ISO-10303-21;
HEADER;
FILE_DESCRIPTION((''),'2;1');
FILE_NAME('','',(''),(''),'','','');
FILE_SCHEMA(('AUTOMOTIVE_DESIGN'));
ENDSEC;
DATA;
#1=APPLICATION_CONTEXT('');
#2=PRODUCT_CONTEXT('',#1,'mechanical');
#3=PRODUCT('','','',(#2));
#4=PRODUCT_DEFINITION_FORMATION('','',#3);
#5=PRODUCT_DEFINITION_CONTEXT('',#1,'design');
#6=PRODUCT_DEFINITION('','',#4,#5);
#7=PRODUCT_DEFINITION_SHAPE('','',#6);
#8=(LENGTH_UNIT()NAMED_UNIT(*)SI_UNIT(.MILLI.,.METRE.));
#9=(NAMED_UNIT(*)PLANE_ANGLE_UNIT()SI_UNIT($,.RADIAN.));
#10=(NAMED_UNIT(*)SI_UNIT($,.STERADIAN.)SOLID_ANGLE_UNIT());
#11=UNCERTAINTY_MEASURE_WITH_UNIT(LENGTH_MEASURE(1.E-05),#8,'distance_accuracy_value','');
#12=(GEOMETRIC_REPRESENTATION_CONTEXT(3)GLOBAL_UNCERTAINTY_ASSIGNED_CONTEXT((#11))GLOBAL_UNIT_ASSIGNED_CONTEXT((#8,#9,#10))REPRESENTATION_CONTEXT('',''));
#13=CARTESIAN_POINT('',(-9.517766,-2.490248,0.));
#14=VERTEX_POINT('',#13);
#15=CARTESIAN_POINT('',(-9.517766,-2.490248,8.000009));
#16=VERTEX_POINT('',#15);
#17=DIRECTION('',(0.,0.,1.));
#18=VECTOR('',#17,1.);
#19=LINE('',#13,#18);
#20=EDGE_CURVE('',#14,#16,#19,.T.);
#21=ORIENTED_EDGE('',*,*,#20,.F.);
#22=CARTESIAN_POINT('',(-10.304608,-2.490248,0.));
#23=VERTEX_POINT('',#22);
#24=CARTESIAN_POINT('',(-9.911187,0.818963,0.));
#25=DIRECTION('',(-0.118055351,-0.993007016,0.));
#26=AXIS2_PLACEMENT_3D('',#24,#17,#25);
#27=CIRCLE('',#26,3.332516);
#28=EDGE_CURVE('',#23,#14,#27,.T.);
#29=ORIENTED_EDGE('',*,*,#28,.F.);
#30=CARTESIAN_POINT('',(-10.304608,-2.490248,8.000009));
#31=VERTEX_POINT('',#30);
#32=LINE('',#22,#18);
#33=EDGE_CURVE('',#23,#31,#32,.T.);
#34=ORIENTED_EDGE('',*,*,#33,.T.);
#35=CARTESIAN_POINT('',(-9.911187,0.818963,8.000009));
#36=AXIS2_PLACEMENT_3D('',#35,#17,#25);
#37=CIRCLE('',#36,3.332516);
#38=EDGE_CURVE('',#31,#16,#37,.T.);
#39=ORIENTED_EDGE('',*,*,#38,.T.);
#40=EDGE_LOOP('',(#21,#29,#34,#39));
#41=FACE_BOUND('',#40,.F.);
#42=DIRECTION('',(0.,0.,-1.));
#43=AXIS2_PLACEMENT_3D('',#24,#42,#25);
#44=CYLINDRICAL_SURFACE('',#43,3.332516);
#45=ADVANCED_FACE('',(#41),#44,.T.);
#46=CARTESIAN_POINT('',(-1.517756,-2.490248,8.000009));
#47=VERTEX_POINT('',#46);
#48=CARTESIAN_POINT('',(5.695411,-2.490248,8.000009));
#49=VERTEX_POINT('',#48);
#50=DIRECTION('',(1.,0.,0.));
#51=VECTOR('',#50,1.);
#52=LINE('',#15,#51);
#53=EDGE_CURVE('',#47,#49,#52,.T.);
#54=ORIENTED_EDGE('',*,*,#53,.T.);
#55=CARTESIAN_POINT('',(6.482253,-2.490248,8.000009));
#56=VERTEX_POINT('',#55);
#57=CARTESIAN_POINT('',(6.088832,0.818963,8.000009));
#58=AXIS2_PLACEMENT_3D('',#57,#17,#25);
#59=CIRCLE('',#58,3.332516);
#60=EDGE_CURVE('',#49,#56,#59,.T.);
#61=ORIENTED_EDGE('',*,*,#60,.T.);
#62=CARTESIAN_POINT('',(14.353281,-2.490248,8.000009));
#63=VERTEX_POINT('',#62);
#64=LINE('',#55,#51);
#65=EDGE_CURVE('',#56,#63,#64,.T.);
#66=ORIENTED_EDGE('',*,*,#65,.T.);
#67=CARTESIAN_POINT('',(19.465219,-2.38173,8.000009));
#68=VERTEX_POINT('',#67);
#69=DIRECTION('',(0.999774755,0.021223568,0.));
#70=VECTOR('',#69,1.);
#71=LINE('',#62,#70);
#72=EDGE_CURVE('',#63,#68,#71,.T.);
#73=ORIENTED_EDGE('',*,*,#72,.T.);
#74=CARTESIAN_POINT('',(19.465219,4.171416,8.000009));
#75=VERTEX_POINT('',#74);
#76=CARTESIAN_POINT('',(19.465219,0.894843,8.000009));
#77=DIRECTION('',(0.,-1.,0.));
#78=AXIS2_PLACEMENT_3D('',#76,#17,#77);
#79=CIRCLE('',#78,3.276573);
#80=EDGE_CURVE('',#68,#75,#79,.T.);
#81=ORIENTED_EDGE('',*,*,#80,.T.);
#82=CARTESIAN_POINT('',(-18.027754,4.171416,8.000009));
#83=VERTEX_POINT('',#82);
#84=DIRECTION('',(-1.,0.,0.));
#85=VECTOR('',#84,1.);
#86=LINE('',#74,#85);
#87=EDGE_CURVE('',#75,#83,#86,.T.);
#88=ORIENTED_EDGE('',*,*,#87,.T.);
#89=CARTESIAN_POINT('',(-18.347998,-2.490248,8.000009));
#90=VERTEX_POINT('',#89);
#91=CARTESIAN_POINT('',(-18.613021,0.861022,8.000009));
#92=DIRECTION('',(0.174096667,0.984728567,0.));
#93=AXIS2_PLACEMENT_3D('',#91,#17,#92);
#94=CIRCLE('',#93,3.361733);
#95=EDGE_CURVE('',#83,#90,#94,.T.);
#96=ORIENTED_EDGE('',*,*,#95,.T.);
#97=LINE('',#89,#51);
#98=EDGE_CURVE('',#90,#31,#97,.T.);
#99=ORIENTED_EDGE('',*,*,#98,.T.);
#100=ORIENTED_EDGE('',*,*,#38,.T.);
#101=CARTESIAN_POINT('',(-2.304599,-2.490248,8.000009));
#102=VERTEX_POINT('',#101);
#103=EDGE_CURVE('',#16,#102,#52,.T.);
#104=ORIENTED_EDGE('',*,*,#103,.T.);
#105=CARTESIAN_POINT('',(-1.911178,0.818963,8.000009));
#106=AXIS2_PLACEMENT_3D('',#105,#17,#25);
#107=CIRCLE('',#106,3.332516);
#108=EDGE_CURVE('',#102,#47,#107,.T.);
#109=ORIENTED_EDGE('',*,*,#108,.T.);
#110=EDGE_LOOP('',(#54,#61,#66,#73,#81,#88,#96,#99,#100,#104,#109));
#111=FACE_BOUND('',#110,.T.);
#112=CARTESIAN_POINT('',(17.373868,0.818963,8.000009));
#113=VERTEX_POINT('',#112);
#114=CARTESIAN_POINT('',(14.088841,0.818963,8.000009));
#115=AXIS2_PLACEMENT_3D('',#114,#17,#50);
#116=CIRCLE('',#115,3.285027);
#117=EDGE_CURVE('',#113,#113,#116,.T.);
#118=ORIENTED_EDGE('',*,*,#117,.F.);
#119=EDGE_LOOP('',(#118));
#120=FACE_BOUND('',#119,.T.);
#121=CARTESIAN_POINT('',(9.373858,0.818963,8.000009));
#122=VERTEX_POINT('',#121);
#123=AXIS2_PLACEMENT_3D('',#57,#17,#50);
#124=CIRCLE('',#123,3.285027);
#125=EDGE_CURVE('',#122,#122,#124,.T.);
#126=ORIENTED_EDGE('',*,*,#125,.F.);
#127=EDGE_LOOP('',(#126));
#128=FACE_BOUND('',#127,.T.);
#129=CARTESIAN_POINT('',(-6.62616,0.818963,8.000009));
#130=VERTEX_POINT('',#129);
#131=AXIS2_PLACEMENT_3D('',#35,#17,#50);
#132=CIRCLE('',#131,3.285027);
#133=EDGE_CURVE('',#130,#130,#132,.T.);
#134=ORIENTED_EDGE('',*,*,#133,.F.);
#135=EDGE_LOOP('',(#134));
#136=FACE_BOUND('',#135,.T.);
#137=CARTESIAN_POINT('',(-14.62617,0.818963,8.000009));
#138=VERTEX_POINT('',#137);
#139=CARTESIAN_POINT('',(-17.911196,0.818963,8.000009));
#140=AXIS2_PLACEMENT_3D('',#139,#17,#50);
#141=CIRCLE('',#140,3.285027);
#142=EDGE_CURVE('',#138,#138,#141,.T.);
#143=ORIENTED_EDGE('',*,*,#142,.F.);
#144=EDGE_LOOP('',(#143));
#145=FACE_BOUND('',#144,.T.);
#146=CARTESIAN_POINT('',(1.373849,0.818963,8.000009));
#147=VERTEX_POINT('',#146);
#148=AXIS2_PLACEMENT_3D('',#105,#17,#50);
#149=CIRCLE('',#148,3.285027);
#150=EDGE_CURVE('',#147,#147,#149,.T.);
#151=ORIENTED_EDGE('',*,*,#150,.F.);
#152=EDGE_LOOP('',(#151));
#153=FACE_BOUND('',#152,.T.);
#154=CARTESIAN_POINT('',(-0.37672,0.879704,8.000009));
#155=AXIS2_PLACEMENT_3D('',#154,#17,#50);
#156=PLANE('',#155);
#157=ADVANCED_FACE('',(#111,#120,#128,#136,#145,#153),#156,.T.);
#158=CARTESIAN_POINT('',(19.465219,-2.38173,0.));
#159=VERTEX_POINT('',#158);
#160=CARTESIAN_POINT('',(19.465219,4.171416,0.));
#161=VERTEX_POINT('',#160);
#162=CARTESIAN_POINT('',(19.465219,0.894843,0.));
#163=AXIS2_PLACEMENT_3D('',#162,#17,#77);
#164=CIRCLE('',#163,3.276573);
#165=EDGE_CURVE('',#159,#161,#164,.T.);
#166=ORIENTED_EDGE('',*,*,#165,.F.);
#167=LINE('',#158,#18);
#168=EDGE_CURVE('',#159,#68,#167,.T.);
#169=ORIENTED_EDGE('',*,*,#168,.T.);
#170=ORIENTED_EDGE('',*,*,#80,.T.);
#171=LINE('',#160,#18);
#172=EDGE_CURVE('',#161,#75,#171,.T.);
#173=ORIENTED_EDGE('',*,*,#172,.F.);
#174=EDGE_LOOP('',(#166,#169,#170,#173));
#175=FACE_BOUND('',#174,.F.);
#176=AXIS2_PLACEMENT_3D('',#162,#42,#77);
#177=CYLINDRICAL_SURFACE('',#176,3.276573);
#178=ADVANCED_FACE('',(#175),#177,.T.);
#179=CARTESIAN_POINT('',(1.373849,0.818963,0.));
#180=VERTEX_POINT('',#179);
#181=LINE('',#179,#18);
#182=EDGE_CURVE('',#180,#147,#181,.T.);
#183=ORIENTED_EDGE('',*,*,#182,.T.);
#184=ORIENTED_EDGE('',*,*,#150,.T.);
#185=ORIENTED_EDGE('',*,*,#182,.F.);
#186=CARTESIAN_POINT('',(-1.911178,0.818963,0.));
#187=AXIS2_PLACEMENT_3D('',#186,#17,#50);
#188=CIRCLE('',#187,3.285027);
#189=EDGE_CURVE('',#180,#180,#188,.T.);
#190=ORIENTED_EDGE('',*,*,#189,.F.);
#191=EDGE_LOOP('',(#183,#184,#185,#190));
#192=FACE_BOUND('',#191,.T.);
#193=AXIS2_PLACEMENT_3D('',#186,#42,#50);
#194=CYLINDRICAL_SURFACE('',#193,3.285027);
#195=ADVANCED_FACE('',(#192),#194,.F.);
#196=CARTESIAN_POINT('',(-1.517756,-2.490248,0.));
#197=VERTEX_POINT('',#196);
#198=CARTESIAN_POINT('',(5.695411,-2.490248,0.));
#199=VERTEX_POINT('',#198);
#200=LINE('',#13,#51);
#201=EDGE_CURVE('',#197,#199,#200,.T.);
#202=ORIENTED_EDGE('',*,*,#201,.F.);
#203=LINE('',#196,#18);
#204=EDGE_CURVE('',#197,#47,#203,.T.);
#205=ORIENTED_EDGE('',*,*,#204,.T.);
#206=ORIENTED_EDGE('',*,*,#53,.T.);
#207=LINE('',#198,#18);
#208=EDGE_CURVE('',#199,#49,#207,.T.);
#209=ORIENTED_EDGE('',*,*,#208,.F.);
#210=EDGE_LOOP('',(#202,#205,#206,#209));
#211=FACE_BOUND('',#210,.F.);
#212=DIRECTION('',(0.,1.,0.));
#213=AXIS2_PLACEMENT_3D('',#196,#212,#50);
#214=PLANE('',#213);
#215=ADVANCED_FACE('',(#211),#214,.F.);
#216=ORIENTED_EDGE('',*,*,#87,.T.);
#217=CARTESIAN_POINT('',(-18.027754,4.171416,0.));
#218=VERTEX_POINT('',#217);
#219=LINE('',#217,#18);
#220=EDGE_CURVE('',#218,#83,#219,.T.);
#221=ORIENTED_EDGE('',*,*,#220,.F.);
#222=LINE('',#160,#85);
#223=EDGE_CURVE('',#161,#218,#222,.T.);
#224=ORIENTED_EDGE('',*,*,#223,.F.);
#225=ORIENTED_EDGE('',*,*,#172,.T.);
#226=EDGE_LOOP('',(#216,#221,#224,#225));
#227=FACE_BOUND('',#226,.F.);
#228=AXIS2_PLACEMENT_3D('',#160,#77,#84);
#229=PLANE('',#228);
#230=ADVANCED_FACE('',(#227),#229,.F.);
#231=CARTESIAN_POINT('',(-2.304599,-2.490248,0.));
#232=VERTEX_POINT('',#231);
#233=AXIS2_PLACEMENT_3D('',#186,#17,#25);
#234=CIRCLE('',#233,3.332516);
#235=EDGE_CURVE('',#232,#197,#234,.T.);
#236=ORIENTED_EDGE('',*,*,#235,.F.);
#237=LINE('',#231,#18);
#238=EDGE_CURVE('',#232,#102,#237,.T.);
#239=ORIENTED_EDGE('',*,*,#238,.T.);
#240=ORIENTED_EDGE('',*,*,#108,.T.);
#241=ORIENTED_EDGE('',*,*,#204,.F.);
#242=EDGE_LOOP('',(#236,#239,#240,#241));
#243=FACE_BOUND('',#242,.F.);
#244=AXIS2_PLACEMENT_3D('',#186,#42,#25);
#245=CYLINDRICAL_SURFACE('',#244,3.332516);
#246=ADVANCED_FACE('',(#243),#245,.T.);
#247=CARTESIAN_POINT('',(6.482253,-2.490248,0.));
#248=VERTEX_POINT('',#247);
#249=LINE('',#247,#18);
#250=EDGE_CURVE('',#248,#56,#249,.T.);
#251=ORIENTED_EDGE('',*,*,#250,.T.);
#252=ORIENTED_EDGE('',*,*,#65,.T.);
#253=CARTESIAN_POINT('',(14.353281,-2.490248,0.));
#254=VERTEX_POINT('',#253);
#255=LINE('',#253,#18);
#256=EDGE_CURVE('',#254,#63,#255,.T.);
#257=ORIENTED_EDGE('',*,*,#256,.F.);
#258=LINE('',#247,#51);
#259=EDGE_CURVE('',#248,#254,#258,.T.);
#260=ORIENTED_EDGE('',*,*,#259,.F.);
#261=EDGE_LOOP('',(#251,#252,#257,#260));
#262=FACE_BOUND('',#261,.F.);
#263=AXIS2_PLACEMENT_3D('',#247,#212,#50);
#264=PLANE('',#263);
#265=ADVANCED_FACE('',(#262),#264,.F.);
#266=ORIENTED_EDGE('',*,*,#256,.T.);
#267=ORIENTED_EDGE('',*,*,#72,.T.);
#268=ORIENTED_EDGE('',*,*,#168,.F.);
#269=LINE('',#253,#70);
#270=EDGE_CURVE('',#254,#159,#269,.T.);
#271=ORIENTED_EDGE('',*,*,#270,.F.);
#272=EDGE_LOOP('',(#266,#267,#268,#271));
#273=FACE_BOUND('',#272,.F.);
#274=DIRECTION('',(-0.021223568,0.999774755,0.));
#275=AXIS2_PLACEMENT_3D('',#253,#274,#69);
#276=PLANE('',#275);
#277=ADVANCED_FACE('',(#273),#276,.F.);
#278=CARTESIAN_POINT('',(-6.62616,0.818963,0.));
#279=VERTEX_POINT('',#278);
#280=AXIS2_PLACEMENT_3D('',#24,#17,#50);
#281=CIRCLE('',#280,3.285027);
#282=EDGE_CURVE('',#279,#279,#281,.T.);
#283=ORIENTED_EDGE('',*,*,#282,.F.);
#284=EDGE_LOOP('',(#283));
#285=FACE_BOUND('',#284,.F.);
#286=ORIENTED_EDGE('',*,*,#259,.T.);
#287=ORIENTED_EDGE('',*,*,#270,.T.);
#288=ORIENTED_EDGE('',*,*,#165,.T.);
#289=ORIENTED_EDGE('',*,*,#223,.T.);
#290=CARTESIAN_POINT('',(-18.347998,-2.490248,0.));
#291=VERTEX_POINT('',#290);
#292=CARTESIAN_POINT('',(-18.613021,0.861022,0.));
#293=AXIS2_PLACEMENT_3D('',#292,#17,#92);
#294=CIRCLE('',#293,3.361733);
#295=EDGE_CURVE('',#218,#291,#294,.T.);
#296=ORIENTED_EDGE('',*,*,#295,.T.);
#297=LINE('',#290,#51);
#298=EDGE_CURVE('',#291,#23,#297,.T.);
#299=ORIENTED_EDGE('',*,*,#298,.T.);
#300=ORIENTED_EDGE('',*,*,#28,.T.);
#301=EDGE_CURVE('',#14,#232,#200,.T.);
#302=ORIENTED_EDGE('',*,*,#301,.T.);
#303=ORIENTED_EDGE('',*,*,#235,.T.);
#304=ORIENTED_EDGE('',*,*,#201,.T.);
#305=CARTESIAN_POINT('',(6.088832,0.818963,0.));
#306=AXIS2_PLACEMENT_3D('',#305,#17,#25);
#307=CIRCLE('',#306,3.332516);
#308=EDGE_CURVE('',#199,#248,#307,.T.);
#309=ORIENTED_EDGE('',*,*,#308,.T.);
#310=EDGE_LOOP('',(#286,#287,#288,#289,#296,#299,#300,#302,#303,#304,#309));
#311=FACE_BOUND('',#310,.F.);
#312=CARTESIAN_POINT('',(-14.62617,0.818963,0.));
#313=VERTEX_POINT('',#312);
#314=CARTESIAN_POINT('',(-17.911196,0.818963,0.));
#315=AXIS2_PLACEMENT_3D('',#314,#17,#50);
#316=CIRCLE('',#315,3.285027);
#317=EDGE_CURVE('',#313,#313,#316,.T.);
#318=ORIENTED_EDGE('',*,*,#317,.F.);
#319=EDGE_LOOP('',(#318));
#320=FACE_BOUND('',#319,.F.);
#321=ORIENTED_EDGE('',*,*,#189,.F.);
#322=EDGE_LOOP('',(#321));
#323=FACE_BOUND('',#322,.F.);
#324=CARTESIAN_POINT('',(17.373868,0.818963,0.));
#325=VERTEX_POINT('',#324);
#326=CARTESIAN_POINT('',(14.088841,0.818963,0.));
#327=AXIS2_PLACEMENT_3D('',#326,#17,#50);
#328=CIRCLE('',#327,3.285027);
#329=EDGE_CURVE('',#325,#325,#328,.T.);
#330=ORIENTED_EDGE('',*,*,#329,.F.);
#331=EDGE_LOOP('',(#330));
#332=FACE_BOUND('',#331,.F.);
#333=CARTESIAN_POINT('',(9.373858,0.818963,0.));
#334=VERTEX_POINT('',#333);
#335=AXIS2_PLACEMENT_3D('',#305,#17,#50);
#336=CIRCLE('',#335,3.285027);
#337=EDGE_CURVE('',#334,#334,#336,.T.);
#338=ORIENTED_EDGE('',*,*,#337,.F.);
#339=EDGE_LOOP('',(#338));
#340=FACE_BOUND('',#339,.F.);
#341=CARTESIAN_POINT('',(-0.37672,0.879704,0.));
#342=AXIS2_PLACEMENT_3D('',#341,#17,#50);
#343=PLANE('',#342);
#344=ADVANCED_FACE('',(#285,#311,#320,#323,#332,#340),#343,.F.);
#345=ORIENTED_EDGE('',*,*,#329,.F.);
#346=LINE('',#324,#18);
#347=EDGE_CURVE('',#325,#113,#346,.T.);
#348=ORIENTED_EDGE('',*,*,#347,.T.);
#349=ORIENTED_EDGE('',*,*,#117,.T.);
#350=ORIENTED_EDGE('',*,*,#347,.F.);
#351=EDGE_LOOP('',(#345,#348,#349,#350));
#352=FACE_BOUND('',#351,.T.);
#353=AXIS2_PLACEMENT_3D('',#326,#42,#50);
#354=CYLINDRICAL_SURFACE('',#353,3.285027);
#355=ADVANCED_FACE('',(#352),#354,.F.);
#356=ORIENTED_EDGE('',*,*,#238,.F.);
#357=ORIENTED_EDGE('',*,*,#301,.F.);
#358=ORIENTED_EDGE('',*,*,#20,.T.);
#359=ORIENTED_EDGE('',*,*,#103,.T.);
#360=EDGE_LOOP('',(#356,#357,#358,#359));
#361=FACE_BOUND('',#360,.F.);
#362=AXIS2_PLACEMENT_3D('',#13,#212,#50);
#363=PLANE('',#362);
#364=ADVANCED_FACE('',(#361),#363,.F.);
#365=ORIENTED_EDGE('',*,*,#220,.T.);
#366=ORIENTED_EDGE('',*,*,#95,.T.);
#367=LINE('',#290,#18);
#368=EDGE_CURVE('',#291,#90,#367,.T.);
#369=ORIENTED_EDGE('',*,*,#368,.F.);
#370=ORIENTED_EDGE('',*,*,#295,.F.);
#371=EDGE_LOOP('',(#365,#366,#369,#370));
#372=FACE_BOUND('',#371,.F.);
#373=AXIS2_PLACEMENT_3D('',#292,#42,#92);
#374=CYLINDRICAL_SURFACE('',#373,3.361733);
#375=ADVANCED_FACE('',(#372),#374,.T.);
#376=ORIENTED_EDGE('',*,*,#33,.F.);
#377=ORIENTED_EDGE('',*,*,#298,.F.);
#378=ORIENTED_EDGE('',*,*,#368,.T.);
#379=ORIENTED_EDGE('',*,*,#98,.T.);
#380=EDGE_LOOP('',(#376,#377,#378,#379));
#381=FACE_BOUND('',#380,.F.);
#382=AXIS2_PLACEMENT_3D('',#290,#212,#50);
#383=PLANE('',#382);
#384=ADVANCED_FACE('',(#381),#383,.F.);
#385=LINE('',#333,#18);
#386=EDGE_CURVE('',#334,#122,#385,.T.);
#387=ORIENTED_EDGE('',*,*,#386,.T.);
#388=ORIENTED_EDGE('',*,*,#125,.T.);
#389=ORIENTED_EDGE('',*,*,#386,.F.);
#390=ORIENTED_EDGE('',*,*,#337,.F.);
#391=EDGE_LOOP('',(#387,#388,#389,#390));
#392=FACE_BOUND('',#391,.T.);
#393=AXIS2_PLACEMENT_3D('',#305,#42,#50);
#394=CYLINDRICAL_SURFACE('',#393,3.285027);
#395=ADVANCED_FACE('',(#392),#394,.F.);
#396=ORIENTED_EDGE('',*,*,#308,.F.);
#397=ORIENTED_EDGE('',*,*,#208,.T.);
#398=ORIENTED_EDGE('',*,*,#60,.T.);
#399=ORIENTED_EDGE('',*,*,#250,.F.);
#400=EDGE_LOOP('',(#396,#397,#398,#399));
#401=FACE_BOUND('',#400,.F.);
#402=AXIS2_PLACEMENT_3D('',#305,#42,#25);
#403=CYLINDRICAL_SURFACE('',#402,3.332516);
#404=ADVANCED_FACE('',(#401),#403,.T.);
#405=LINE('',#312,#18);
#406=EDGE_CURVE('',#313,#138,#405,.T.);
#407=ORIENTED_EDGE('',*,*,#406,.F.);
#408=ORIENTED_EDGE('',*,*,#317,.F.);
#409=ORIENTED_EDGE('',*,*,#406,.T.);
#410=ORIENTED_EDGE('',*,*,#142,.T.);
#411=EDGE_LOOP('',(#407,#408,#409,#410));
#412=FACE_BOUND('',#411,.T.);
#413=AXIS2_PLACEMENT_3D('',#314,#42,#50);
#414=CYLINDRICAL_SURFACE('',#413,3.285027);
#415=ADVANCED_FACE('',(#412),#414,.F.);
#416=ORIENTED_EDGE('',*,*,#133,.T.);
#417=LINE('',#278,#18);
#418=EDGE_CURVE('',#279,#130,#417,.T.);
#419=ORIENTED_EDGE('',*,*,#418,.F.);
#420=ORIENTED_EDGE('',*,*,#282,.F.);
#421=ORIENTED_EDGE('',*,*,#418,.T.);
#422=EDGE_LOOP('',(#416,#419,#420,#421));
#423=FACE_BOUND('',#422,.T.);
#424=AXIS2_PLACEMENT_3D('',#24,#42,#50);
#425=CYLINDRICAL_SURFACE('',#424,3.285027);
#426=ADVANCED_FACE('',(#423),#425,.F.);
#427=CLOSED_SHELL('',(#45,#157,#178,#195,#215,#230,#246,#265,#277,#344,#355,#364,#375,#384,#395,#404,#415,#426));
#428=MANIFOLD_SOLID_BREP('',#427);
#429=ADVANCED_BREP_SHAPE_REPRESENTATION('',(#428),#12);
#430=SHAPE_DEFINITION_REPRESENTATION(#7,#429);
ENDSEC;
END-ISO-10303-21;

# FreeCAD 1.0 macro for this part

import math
import FreeCAD as App
import Part
import Sketcher

V = App.Vector

doc = App.newDocument("Part")
body = doc.addObject("PartDesign::Body", "Body")

# Sketch on XY plane
sketch1 = body.newObject("Sketcher::SketchObject", "Sketch")
sketch1.AttachmentSupport = (doc.getObject("XY_Plane"), [""])
sketch1.MapMode = "FlatFace"
sketch1.addGeometry([
    Part.ArcOfCircle(Part.Circle(V(-18.6, 0.9, 0), V(0, 0, 1), 3.4), math.radians(80), math.radians(275)),  # 0
    Part.LineSegment(V(-18.3, -2.5, 0), V(-10.3, -2.5, 0)),  # 1
    Part.ArcOfCircle(Part.Circle(V(-9.9, 0.8, 0), V(0, 0, 1), 3.3), math.radians(-96.78), math.radians(-83.22)),  # 2
    Part.LineSegment(V(-9.5, -2.5, 0), V(-2.3, -2.5, 0)),  # 3
    Part.ArcOfCircle(Part.Circle(V(-1.9, 0.8, 0), V(0, 0, 1), 3.3), math.radians(-96.78), math.radians(-83.22)),  # 4
    Part.LineSegment(V(-1.5, -2.5, 0), V(5.7, -2.5, 0)),  # 5
    Part.ArcOfCircle(Part.Circle(V(6.1, 0.8, 0), V(0, 0, 1), 3.3), math.radians(-96.78), math.radians(-83.22)),  # 6
    Part.LineSegment(V(6.5, -2.5, 0), V(14.4, -2.5, 0)),  # 7
    Part.LineSegment(V(14.4, -2.5, 0), V(19.5, -2.4, 0)),  # 8
    Part.ArcOfCircle(Part.Circle(V(19.5, 0.9, 0), V(0, 0, 1), 3.3), math.radians(-90), math.radians(90)),  # 9
    Part.LineSegment(V(19.5, 4.2, 0), V(-18, 4.2, 0)),  # 10
    Part.Circle(V(-17.9, 0.8, 0), V(0, 0, 1), 3.3),  # 11
    Part.Circle(V(-9.9, 0.8, 0), V(0, 0, 1), 3.3),  # 12
    Part.Circle(V(-1.9, 0.8, 0), V(0, 0, 1), 3.3),  # 13
    Part.Circle(V(6.1, 0.8, 0), V(0, 0, 1), 3.3),  # 14
    Part.Circle(V(14.1, 0.8, 0), V(0, 0, 1), 3.3),  # 15
], False)
sketch1.addConstraint([
    Sketcher.Constraint("Coincident", 0, 2, 1, 1),
    Sketcher.Constraint("Coincident", 1, 2, 2, 1),
    Sketcher.Constraint("Coincident", 2, 2, 3, 1),
    Sketcher.Constraint("Coincident", 3, 2, 4, 1),
    Sketcher.Constraint("Coincident", 4, 2, 5, 1),
    Sketcher.Constraint("Coincident", 5, 2, 6, 1),
    Sketcher.Constraint("Coincident", 6, 2, 7, 1),
    Sketcher.Constraint("Coincident", 7, 2, 8, 1),
    Sketcher.Constraint("Coincident", 8, 2, 9, 1),
    Sketcher.Constraint("Tangent", 9, 2, 10, 1),
    Sketcher.Constraint("Coincident", 10, 2, 0, 1),
    Sketcher.Constraint("Horizontal", 1),
    Sketcher.Constraint("Horizontal", 3),
    Sketcher.Constraint("Horizontal", 5),
    Sketcher.Constraint("Horizontal", 7),
    Sketcher.Constraint("Horizontal", 10),
    Sketcher.Constraint("Coincident", 12, 3, 2, 3),
    Sketcher.Constraint("Coincident", 13, 3, 4, 3),
    Sketcher.Constraint("Coincident", 14, 3, 6, 3),
    Sketcher.Constraint("Equal", 2, 4),
    Sketcher.Constraint("Equal", 4, 6),
    Sketcher.Constraint("Equal", 11, 12),
    Sketcher.Constraint("Equal", 12, 13),
    Sketcher.Constraint("Equal", 13, 14),
    Sketcher.Constraint("Equal", 14, 15),
    Sketcher.Constraint("Horizontal", 2, 3, 4, 3),
    Sketcher.Constraint("Horizontal", 4, 3, 6, 3),
    Sketcher.Constraint("Horizontal", 6, 3, 11, 3),
    Sketcher.Constraint("Horizontal", 14, 3, 15, 3),
    Sketcher.Constraint("Horizontal", 1, 2, 2, 2),
    Sketcher.Constraint("Horizontal", 3, 2, 4, 2),
    Sketcher.Constraint("Horizontal", 5, 2, 6, 2),
    Sketcher.Constraint("Vertical", 9, 3, 8, 2),
    Sketcher.Constraint("Equal", 3, 5),
    Sketcher.Constraint("Diameter", 11, 6.570053),
    Sketcher.Constraint("DistanceX", 0, 2, -1, 1, 18.347998),
    Sketcher.Constraint("Radius", 0, 3.361733),
    Sketcher.Constraint("Radius", 2, 3.332516),
    Sketcher.Constraint("Radius", 9, 3.276573),
    Sketcher.Constraint("DistanceX", 1, 1, 1, 2, 8.04339),
    Sketcher.Constraint("DistanceX", 7, 1, 7, 2, 7.871028),
    Sketcher.Constraint("DistanceX", 3, 2, -1, 1, 2.304599),
    Sketcher.Constraint("DistanceX", 0, 2, 11, 3, 0.436802),
    Sketcher.Constraint("Distance", 8, 5.113089),
    Sketcher.Constraint("DistanceX", 3, 1, 3, 2, 7.213167),
    Sketcher.Constraint("DistanceX", 10, 2, 10, 1, 37.492973),
    Sketcher.Constraint("DistanceX", 0, 3, -1, 1, 18.613021),
    Sketcher.Constraint("DistanceY", -1, 1, 0, 3, 0.861022),
    Sketcher.Constraint("DistanceX", -1, 1, 15, 3, 14.088841),
])
pad1 = body.newObject("PartDesign::Pad", "Pad")
pad1.Profile = sketch1
pad1.Length = 8.000009

doc.recompute()
